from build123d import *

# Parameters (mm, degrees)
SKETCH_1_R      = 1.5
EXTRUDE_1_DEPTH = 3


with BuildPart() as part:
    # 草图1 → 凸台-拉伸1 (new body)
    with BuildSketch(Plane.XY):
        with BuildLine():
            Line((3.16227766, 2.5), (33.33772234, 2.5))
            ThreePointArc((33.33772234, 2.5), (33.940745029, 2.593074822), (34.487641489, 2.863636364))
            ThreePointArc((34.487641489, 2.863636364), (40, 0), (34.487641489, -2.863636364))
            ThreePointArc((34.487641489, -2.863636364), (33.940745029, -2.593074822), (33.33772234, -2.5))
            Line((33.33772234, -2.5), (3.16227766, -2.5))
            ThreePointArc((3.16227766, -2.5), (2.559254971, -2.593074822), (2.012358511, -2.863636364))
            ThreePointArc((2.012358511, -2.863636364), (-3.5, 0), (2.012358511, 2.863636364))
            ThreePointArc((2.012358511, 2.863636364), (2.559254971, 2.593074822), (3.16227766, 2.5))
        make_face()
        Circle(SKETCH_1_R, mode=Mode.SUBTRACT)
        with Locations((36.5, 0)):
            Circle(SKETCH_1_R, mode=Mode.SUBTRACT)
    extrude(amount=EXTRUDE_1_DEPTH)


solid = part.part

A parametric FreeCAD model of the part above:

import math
import FreeCAD as App
import Part
import Sketcher
from FreeCAD import Vector
Q = App.Units.Quantity

doc = App.newDocument("Part")
params = doc.addObject("Spreadsheet::Sheet", "Params")
for row, (alias, value) in enumerate([
    ("sketch1_diameter", "3 mm"),
    ("sketch1_radius", "2 mm"),
    ("sketch1_radius2", "3.5 mm"),
    ("pad1_length", "3 mm"),
], start=1):
    params.set(f"A{row}", alias)
    params.set(f"B{row}", "=" + value)
    params.setAlias(f"B{row}", alias)

body = doc.addObject("PartDesign::Body", "Body")

# Sketch on XY plane
sketch1 = doc.addObject("Sketcher::SketchObject", "Sketch")
body.addObject(sketch1)
sketch1.AttachmentSupport = (doc.XY_Plane, [""])
sketch1.MapMode = "FlatFace"
sketch1.addGeometry(Part.LineSegment(Vector(33.337722, 2.5, 0), Vector(3.162278, 2.5, 0)), False)
sketch1.addGeometry(Part.ArcOfCircle(Part.Circle(Vector(3.162278, 4.5, 0), Vector(0, 0, 1), 2), math.radians(-125.096801), math.radians(-90)), False)
sketch1.addGeometry(Part.ArcOfCircle(Part.Circle(Vector(0, 0, 0), Vector(0, 0, 1), 3.5), math.radians(54.903199), math.radians(305.096801)), False)
sketch1.addGeometry(Part.ArcOfCircle(Part.Circle(Vector(3.162278, -4.5, 0), Vector(0, 0, 1), 2), math.radians(90), math.radians(125.096801)), False)
sketch1.addGeometry(Part.LineSegment(Vector(3.162278, -2.5, 0), Vector(33.337722, -2.5, 0)), False)
sketch1.addGeometry(Part.ArcOfCircle(Part.Circle(Vector(33.337722, -4.5, 0), Vector(0, 0, 1), 2), math.radians(54.903199), math.radians(90)), False)
sketch1.addGeometry(Part.ArcOfCircle(Part.Circle(Vector(36.5, 0, 0), Vector(0, 0, 1), 3.5), math.radians(-125.096801), math.radians(125.096801)), False)
sketch1.addGeometry(Part.ArcOfCircle(Part.Circle(Vector(33.337722, 4.5, 0), Vector(0, 0, 1), 2), math.radians(-90), math.radians(-54.903199)), False)
sketch1.addGeometry(Part.Circle(Vector(36.5, 0, 0), Vector(0, 0, 1), 1.5), False)
sketch1.addGeometry(Part.Circle(Vector(0, 0, 0), Vector(0, 0, 1), 1.5), False)
sketch1.addConstraint(Sketcher.Constraint("Tangent", 0, 2, 1, 2))
sketch1.addConstraint(Sketcher.Constraint("Tangent", 1, 1, 2, 1))
sketch1.addConstraint(Sketcher.Constraint("Tangent", 2, 2, 3, 2))
sketch1.addConstraint(Sketcher.Constraint("Tangent", 3, 1, 4, 1))
sketch1.addConstraint(Sketcher.Constraint("Tangent", 4, 2, 5, 2))
sketch1.addConstraint(Sketcher.Constraint("Tangent", 5, 1, 6, 1))
sketch1.addConstraint(Sketcher.Constraint("Tangent", 6, 2, 7, 2))
sketch1.addConstraint(Sketcher.Constraint("Tangent", 7, 1, 0, 1))
sketch1.addConstraint(Sketcher.Constraint("Horizontal", 0))
sketch1.addConstraint(Sketcher.Constraint("Horizontal", 4))
sketch1.addConstraint(Sketcher.Constraint("Coincident", 2, 3, -1, 1))
sketch1.addConstraint(Sketcher.Constraint("Coincident", 9, 3, -1, 1))
sketch1.addConstraint(Sketcher.Constraint("Coincident", 8, 3, 6, 3))
sketch1.addConstraint(Sketcher.Constraint("Equal", 1, 3))
sketch1.addConstraint(Sketcher.Constraint("Equal", 3, 5))
sketch1.addConstraint(Sketcher.Constraint("Equal", 2, 6))
sketch1.addConstraint(Sketcher.Constraint("Equal", 5, 7))
sketch1.addConstraint(Sketcher.Constraint("Equal", 8, 9))
sketch1.addConstraint(Sketcher.Constraint("Symmetric", 5, 3, 7, 3, -1))
sketch1.addConstraint(Sketcher.Constraint("Diameter", 8, Q("3 mm")))
sketch1.addConstraint(Sketcher.Constraint("Radius", 1, Q("2 mm")))
sketch1.addConstraint(Sketcher.Constraint("Radius", 2, Q("3.5 mm")))
sketch1.addConstraint(Sketcher.Constraint("DistanceY", 3, 3, 1, 3, Q("9 mm")))
sketch1.addConstraint(Sketcher.Constraint("DistanceX", -1, 1, 6, 3, Q("36.5 mm")))
sketch1.setExpression("Constraints[19]", "Params.sketch1_diameter")
sketch1.setExpression("Constraints[20]", "Params.sketch1_radius")
sketch1.setExpression("Constraints[21]", "Params.sketch1_radius2")
pad1 = doc.addObject("PartDesign::Pad", "Pad")
body.addObject(pad1)
pad1.Profile = sketch1
pad1.setExpression("Length", "Params.pad1_length")

doc.recompute()
